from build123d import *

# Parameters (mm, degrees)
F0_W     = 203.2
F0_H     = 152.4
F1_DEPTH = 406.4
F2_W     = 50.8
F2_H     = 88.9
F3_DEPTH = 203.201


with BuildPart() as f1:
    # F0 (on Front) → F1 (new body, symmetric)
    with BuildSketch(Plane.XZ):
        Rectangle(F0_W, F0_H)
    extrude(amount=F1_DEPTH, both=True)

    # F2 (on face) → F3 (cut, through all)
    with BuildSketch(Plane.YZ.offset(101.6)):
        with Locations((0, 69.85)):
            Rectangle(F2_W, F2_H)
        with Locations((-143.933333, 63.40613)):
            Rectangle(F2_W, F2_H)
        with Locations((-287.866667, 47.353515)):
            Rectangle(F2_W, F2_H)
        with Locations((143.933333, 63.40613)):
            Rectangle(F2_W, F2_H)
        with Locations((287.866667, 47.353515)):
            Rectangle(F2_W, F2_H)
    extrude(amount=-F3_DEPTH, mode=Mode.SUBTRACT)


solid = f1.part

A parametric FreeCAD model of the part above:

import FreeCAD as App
import Part
import Sketcher
Q = App.Units.Quantity


def add_polygon(sketch, points):
    """Adds a closed chain of lines whose ends are joined by coincident constraints."""
    first, n = sketch.GeometryCount, len(points)
    for a, b in zip(points, points[1:] + points[:1]):
        sketch.addGeometry(Part.LineSegment(App.Vector(*a, 0), App.Vector(*b, 0)), False)
    for i in range(n):
        sketch.addConstraint(Sketcher.Constraint("Coincident", first + i, 2, first + (i + 1) % n, 1))

doc = App.newDocument("Part")
body = doc.addObject("PartDesign::Body", "Body")

sketch1 = body.newObject("Sketcher::SketchObject", "Sketch")
sketch1.AttachmentSupport = (doc.getObject("XZ_Plane"), [""])
sketch1.MapMode = "FlatFace"
add_polygon(sketch1, [(-102, 76), (-102, -76), (102, -76), (102, 76)])
sketch1.addConstraint([
    Sketcher.Constraint("Vertical", 0),
    Sketcher.Constraint("Horizontal", 1),
    Sketcher.Constraint("Vertical", 2),
    Sketcher.Constraint("Horizontal", 3),
    Sketcher.Constraint("Symmetric", 0, 2, 2, 2, -1, 1),
    Sketcher.Constraint("DistanceX", 1, 1, 1, 2, Q("8 in")),
    Sketcher.Constraint("DistanceY", 0, 2, 0, 1, Q("6 in")),
])
pad1 = body.newObject("PartDesign::Pad", "Pad")
pad1.Profile = sketch1
pad1.Length = Q("32 in")
pad1.Midplane = True

sketch2 = body.newObject("Sketcher::SketchObject", "Sketch001")
sketch2.AttachmentSupport = (doc.getObject("YZ_Plane"), [""])
sketch2.MapMode = "FlatFace"
sketch2.AttachmentOffset = App.Placement(App.Vector(0, 0, 4 * 25.4), App.Rotation())
add_polygon(sketch2, [(-25, 114), (-25, 25), (25, 25), (25, 114)])
add_polygon(sketch2, [(-169, 108), (-169, 19), (-119, 19), (-119, 108)])
add_polygon(sketch2, [(-313, 92), (-313, 3), (-262, 3), (-262, 92)])
add_polygon(sketch2, [(119, 108), (119, 19), (169, 19), (169, 108)])
add_polygon(sketch2, [(262, 92), (262, 3), (313, 3), (313, 92)])
sketch2.addConstraint([
    Sketcher.Constraint("Vertical", 0),
    Sketcher.Constraint("Horizontal", 1),
    Sketcher.Constraint("Vertical", 2),
    Sketcher.Constraint("Horizontal", 3),
    Sketcher.Constraint("Vertical", 4),
    Sketcher.Constraint("Horizontal", 5),
    Sketcher.Constraint("Vertical", 6),
    Sketcher.Constraint("Horizontal", 7),
    Sketcher.Constraint("Vertical", 8),
    Sketcher.Constraint("Horizontal", 9),
    Sketcher.Constraint("Vertical", 10),
    Sketcher.Constraint("Horizontal", 11),
    Sketcher.Constraint("Vertical", 12),
    Sketcher.Constraint("Horizontal", 13),
    Sketcher.Constraint("Vertical", 14),
    Sketcher.Constraint("Horizontal", 15),
    Sketcher.Constraint("Vertical", 16),
    Sketcher.Constraint("Horizontal", 17),
    Sketcher.Constraint("Vertical", 18),
    Sketcher.Constraint("Horizontal", 19),
    Sketcher.Constraint("Symmetric", 5, 2, 12, 2, -2),
    Sketcher.Constraint("Symmetric", 7, 2, 14, 2, -2),
    Sketcher.Constraint("Symmetric", 9, 2, 16, 2, -2),
    Sketcher.Constraint("Symmetric", 11, 2, 18, 2, -2),
    Sketcher.Constraint("Equal", 3, 5),
    Sketcher.Constraint("Equal", 7, 9),
    Sketcher.Constraint("Equal", 2, 4),
    Sketcher.Constraint("Equal", 6, 8),
    Sketcher.Constraint("DistanceX", 1, 1, 1, 2, Q("2 in")),
    Sketcher.Constraint("DistanceY", 0, 2, 0, 1, Q("3.5 in")),
    Sketcher.Constraint("DistanceX", 0, 2, -1, 1, Q("1 in")),
    Sketcher.Constraint("DistanceY", -1, 1, 0, 2, Q("1 in")),
    Sketcher.Constraint("DistanceY", -1, 1, 4, 2, 18.95613),
    Sketcher.Constraint("DistanceX", 4, 2, -1, 1, 169.333333),
    Sketcher.Constraint("DistanceX", 8, 2, -1, 1, 313.266667),
    Sketcher.Constraint("DistanceY", -1, 1, 8, 2, 2.903515),
])
pocket1 = body.newObject("PartDesign::Pocket", "Pocket")
pocket1.Profile = sketch2
pocket1.Type = "ThroughAll"

doc.recompute()
